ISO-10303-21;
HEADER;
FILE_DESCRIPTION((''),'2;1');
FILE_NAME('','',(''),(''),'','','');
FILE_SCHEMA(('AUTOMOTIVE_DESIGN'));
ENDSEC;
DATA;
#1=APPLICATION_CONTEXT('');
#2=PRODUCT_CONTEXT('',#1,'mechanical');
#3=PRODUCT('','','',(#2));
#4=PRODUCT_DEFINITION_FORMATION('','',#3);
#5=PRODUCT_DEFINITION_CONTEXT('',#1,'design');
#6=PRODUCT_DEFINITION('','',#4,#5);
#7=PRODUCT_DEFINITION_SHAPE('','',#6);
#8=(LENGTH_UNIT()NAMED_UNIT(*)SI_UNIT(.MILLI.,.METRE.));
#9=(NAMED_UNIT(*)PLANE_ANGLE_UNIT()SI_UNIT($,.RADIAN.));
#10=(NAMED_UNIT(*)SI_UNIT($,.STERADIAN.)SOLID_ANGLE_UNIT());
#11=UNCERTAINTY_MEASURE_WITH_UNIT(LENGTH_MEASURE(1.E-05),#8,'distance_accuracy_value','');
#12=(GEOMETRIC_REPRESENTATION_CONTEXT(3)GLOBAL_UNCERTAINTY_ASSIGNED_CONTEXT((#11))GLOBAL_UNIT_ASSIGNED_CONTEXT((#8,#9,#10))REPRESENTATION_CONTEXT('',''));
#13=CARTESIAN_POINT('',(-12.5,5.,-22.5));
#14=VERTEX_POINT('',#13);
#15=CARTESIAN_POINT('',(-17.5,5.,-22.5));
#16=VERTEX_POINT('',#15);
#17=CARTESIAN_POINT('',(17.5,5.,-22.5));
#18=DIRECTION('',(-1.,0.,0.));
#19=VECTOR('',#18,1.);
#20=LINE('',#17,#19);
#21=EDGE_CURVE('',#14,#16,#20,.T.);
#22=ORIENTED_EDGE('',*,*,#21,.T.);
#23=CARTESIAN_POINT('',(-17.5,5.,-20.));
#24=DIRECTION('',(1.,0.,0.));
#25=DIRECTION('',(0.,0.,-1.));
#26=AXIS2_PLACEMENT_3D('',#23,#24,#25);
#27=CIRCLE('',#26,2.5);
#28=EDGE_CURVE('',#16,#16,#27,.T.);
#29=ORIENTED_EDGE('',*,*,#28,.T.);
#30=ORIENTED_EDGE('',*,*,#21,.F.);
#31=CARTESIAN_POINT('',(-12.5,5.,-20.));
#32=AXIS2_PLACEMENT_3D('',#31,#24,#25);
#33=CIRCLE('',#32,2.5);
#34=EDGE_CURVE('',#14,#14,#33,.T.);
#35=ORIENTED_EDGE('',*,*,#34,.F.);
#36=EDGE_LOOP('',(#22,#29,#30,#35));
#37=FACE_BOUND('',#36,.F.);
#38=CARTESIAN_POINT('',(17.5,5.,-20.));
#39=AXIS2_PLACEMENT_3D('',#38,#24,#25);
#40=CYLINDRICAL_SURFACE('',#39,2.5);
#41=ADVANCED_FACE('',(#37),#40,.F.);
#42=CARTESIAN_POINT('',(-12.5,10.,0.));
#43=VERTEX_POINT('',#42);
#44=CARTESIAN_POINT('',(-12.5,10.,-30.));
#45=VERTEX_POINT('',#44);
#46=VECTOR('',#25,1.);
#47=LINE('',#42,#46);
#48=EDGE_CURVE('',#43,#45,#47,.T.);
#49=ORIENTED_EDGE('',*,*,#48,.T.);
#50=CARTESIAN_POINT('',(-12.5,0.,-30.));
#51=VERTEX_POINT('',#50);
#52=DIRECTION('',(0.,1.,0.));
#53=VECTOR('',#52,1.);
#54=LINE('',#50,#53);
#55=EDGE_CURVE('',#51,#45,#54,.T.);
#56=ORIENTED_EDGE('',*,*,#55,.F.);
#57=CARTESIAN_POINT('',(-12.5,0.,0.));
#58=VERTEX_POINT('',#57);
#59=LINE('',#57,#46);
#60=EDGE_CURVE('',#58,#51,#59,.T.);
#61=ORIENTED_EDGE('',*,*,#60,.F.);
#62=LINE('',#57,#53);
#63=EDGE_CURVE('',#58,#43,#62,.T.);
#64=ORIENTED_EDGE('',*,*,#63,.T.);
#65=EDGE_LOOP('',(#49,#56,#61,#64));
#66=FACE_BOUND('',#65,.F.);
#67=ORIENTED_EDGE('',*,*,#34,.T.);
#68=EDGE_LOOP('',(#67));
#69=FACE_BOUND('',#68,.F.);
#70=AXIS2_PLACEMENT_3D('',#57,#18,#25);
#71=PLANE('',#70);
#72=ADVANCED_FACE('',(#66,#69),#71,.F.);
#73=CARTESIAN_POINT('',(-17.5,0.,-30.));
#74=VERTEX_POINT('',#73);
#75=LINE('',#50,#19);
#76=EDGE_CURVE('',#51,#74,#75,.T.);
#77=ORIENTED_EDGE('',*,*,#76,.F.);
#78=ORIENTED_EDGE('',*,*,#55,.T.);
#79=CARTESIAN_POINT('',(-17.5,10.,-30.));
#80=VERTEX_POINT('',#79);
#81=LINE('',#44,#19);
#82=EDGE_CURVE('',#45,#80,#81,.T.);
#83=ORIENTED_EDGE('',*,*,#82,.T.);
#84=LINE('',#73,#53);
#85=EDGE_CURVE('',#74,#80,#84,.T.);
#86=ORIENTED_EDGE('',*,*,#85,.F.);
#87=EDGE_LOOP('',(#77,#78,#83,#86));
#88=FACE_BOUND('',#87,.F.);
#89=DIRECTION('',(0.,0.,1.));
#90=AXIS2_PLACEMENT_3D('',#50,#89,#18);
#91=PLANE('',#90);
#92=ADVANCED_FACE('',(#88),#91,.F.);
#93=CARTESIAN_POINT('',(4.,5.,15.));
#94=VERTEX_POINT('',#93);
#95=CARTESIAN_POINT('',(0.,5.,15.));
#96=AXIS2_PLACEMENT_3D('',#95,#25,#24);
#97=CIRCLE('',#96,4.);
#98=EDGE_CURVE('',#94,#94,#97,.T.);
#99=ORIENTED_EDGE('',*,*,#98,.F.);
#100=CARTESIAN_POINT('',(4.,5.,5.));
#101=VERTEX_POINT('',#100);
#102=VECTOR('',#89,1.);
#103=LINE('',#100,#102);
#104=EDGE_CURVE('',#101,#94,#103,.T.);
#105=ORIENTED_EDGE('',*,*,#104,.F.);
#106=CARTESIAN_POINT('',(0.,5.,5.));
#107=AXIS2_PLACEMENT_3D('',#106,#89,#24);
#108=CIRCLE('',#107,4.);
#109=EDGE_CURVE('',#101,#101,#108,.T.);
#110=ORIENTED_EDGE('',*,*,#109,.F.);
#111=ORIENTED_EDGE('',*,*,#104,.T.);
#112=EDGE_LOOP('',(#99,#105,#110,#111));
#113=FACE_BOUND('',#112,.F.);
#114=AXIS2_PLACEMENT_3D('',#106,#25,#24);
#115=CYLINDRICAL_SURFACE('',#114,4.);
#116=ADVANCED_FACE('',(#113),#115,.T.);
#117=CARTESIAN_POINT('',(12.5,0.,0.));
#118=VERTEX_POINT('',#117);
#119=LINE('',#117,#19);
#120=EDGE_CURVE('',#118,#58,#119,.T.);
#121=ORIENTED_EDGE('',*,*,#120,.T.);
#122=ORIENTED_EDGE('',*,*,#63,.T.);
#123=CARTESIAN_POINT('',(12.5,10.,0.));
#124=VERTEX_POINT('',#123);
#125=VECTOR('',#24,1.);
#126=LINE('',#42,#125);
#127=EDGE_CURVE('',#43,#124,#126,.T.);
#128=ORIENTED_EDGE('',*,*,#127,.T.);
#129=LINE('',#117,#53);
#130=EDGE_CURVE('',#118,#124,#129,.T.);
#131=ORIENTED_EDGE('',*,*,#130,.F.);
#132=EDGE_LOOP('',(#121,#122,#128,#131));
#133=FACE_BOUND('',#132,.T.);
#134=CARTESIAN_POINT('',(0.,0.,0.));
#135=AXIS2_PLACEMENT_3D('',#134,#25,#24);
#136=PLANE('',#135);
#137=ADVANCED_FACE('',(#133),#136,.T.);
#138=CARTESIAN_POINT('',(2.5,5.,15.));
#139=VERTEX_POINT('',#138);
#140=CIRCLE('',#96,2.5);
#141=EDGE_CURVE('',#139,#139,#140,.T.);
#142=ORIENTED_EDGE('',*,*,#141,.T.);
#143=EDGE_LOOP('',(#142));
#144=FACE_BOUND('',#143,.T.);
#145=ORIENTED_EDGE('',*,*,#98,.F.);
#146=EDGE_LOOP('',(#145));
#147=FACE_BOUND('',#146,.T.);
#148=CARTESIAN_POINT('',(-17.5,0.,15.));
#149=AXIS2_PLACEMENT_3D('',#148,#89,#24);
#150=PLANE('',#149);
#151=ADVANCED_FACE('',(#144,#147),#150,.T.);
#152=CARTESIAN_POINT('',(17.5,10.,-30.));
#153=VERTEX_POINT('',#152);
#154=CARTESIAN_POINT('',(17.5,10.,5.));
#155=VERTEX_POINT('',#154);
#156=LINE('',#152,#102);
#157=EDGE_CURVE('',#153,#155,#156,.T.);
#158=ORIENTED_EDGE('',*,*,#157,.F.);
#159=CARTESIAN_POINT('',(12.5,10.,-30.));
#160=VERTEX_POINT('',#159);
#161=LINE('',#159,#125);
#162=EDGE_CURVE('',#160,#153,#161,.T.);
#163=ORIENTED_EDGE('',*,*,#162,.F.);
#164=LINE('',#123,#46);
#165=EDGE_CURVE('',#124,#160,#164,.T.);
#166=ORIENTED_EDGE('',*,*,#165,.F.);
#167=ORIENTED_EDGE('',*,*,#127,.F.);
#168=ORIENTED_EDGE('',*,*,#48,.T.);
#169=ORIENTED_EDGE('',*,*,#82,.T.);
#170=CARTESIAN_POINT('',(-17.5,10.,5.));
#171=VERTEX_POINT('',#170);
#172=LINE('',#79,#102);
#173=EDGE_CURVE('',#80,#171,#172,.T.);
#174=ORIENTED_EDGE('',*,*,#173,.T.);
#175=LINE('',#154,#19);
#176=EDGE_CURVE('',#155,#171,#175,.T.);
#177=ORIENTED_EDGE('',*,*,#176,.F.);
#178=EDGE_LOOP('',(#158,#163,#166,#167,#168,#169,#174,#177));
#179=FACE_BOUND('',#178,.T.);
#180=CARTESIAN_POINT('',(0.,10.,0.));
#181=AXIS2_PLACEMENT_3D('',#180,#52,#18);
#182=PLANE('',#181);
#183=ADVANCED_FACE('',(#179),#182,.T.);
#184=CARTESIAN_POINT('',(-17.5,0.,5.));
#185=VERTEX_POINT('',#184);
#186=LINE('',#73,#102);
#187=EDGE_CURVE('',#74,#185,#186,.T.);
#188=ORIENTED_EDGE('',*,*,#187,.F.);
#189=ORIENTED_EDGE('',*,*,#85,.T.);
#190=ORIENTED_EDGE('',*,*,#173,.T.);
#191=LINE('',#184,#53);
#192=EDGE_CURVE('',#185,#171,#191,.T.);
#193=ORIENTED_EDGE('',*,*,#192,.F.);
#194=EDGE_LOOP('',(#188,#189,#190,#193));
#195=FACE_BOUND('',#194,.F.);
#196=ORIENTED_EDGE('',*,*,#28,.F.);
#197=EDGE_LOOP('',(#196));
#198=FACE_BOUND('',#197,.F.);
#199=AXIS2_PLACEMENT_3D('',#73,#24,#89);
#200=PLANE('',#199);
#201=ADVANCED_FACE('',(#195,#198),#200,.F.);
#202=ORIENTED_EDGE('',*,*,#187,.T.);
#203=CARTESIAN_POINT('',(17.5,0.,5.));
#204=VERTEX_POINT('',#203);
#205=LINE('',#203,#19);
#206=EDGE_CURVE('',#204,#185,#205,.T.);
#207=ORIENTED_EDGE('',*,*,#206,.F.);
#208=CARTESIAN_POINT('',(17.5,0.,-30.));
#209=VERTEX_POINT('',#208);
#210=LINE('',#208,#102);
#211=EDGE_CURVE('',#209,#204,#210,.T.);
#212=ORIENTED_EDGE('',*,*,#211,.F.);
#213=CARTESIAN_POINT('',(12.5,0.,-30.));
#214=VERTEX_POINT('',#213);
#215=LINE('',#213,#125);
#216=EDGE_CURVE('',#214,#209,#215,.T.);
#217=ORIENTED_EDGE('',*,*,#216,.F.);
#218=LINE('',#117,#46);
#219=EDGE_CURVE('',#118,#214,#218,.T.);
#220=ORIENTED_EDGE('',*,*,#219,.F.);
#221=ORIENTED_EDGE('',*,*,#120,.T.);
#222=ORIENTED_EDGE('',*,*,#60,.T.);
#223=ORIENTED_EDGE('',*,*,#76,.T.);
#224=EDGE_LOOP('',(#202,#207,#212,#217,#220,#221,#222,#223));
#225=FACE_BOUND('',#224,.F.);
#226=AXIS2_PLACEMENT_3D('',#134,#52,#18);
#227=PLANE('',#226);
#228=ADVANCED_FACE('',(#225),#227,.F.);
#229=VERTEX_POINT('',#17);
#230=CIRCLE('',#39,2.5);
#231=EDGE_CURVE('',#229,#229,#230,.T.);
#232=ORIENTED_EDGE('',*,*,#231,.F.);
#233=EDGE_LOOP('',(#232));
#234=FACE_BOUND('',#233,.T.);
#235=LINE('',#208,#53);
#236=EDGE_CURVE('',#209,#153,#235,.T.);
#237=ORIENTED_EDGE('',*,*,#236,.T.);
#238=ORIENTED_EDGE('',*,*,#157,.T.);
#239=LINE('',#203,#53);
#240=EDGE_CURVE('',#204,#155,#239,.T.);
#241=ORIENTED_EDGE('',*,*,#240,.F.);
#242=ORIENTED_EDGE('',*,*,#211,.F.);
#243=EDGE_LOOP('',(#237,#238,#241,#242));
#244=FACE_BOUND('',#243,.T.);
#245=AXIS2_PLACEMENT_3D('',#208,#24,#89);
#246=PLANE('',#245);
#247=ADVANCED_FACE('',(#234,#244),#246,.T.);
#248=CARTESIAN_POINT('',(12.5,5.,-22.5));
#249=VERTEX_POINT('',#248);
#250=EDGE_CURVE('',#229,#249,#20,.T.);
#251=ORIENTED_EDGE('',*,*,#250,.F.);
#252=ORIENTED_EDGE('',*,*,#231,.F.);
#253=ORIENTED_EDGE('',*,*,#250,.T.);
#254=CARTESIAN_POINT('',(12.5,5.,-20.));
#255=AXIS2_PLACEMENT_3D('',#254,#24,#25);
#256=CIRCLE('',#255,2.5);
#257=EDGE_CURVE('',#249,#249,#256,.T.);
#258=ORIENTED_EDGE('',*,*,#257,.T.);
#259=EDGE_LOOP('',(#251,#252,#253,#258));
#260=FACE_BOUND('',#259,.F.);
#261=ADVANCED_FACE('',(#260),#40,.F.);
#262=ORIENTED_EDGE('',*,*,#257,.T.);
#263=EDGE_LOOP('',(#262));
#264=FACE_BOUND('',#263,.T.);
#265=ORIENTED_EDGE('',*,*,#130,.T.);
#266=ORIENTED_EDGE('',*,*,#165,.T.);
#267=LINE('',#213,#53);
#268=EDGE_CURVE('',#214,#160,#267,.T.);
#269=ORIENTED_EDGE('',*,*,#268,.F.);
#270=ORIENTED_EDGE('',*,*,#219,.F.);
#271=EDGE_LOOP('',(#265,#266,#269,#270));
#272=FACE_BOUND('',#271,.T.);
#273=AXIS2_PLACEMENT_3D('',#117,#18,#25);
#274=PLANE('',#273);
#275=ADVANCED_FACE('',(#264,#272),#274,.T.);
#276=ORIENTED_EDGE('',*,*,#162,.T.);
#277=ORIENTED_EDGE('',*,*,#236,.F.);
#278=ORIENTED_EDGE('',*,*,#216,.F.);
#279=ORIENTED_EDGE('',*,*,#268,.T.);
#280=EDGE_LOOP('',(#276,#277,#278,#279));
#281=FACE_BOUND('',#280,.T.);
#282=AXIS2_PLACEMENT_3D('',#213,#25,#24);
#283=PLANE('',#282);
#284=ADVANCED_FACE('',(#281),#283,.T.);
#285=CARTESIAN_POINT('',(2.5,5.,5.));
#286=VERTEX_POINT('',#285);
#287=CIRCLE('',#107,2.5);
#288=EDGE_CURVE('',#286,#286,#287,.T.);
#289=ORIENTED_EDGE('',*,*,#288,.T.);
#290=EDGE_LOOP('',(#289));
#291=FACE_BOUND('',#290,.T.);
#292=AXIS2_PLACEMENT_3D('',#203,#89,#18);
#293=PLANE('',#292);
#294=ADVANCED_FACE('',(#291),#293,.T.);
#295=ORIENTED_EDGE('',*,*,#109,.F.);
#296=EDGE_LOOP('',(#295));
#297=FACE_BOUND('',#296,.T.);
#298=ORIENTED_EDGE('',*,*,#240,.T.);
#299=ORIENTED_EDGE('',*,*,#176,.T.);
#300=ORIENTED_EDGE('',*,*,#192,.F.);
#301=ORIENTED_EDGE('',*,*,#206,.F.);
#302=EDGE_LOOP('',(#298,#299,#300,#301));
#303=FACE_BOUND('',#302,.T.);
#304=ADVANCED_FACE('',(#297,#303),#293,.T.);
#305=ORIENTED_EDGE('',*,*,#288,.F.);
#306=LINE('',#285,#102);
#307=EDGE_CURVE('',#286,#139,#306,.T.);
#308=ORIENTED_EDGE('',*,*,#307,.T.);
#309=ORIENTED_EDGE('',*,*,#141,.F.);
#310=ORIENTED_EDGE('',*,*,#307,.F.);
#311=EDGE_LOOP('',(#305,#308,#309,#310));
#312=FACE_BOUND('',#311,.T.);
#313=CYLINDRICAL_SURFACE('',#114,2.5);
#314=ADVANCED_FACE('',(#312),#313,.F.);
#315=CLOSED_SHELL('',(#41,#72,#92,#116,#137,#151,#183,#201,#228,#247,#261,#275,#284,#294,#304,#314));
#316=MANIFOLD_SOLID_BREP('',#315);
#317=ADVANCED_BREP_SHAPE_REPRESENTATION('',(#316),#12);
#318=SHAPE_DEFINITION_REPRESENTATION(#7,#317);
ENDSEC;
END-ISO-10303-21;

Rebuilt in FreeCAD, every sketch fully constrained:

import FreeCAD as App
import Part
import Sketcher

V = App.Vector

doc = App.newDocument("Part")
body = doc.addObject("PartDesign::Body", "Body")

# Sketch on XZ plane
sketch1 = body.newObject("Sketcher::SketchObject", "Sketch")
sketch1.AttachmentSupport = (doc.getObject("XZ_Plane"), [""])
sketch1.MapMode = "FlatFace"
sketch1.addGeometry(Part.LineSegment(V(12, 0, 0), V(-12, 0, 0)), False)
sketch1.addGeometry(Part.LineSegment(V(-12, 0, 0), V(-12, -30, 0)), False)
sketch1.addGeometry(Part.LineSegment(V(-12, -30, 0), V(-18, -30, 0)), False)
sketch1.addGeometry(Part.LineSegment(V(-18, -30, 0), V(-18, 5, 0)), False)
sketch1.addGeometry(Part.LineSegment(V(-18, 5, 0), V(18, 5, 0)), False)
sketch1.addGeometry(Part.LineSegment(V(18, 5, 0), V(18, -30, 0)), False)
sketch1.addGeometry(Part.LineSegment(V(18, -30, 0), V(12, -30, 0)), False)
sketch1.addGeometry(Part.LineSegment(V(12, -30, 0), V(12, 0, 0)), False)
sketch1.addConstraint(Sketcher.Constraint("Coincident", 0, 2, 1, 1))
sketch1.addConstraint(Sketcher.Constraint("Coincident", 1, 2, 2, 1))
sketch1.addConstraint(Sketcher.Constraint("Coincident", 2, 2, 3, 1))
sketch1.addConstraint(Sketcher.Constraint("Coincident", 3, 2, 4, 1))
sketch1.addConstraint(Sketcher.Constraint("Coincident", 4, 2, 5, 1))
sketch1.addConstraint(Sketcher.Constraint("Coincident", 5, 2, 6, 1))
sketch1.addConstraint(Sketcher.Constraint("Coincident", 6, 2, 7, 1))
sketch1.addConstraint(Sketcher.Constraint("Coincident", 7, 2, 0, 1))
sketch1.addConstraint(Sketcher.Constraint("Horizontal", 0))
sketch1.addConstraint(Sketcher.Constraint("Vertical", 1))
sketch1.addConstraint(Sketcher.Constraint("Horizontal", 2))
sketch1.addConstraint(Sketcher.Constraint("Vertical", 3))
sketch1.addConstraint(Sketcher.Constraint("Horizontal", 4))
sketch1.addConstraint(Sketcher.Constraint("Vertical", 5))
sketch1.addConstraint(Sketcher.Constraint("Horizontal", 6))
sketch1.addConstraint(Sketcher.Constraint("Vertical", 7))
sketch1.addConstraint(Sketcher.Constraint("Symmetric", 0, 2, 7, 2, -1, 1))
sketch1.addConstraint(Sketcher.Constraint("Symmetric", 2, 2, 5, 2, -2))
sketch1.addConstraint(Sketcher.Constraint("Equal", 4, 3))
sketch1.addConstraint(Sketcher.Constraint("DistanceX", 2, 2, 2, 1, 5.0))
sketch1.addConstraint(Sketcher.Constraint("DistanceX", 4, 1, 4, 2, 35.0))
sketch1.addConstraint(Sketcher.Constraint("DistanceY", 1, 2, 1, 1, 30.0))
pad1 = body.newObject("PartDesign::Pad", "Pad")
pad1.Profile = sketch1
pad1.Length = 10
pad1.Reversed = True

# Sketch on YZ plane
sketch2 = body.newObject("Sketcher::SketchObject", "Sketch001")
sketch2.AttachmentSupport = (doc.getObject("YZ_Plane"), [""])
sketch2.MapMode = "FlatFace"
sketch2.AttachmentOffset = App.Placement(V(0, 0, 17.5), App.Rotation())
sketch2.addGeometry(Part.Circle(V(5, -20, 0), V(0, 0, 1), 2.5), False)
sketch2.addConstraint(Sketcher.Constraint("Diameter", 0, 5.0))
sketch2.addConstraint(Sketcher.Constraint("DistanceX", -1, 1, 0, 3, 5.0))
sketch2.addConstraint(Sketcher.Constraint("DistanceY", 0, 3, -1, 1, 20.0))
pocket1 = body.newObject("PartDesign::Pocket", "Pocket")
pocket1.Profile = sketch2
pocket1.Length = 35

# Sketch on XY plane
sketch3 = body.newObject("Sketcher::SketchObject", "Sketch002")
sketch3.AttachmentSupport = (doc.getObject("XY_Plane"), [""])
sketch3.MapMode = "FlatFace"
sketch3.AttachmentOffset = App.Placement(V(0, 0, 5), App.Rotation())
sketch3.addGeometry(Part.Circle(V(0, 5, 0), V(0, 0, 1), 4), False)
sketch3.addGeometry(Part.Circle(V(0, 5, 0), V(0, 0, 1), 2.5), False)
sketch3.addConstraint(Sketcher.Constraint("Coincident", 1, 3, 0, 3))
sketch3.addConstraint(Sketcher.Constraint("PointOnObject", 0, 3, -2))
sketch3.addConstraint(Sketcher.Constraint("Diameter", 0, 8.0))
sketch3.addConstraint(Sketcher.Constraint("Diameter", 1, 5.0))
sketch3.addConstraint(Sketcher.Constraint("DistanceY", -1, 1, 0, 3, 5.0))
pad2 = body.newObject("PartDesign::Pad", "Pad001")
pad2.Profile = sketch3
pad2.Length = 10

doc.recompute()
